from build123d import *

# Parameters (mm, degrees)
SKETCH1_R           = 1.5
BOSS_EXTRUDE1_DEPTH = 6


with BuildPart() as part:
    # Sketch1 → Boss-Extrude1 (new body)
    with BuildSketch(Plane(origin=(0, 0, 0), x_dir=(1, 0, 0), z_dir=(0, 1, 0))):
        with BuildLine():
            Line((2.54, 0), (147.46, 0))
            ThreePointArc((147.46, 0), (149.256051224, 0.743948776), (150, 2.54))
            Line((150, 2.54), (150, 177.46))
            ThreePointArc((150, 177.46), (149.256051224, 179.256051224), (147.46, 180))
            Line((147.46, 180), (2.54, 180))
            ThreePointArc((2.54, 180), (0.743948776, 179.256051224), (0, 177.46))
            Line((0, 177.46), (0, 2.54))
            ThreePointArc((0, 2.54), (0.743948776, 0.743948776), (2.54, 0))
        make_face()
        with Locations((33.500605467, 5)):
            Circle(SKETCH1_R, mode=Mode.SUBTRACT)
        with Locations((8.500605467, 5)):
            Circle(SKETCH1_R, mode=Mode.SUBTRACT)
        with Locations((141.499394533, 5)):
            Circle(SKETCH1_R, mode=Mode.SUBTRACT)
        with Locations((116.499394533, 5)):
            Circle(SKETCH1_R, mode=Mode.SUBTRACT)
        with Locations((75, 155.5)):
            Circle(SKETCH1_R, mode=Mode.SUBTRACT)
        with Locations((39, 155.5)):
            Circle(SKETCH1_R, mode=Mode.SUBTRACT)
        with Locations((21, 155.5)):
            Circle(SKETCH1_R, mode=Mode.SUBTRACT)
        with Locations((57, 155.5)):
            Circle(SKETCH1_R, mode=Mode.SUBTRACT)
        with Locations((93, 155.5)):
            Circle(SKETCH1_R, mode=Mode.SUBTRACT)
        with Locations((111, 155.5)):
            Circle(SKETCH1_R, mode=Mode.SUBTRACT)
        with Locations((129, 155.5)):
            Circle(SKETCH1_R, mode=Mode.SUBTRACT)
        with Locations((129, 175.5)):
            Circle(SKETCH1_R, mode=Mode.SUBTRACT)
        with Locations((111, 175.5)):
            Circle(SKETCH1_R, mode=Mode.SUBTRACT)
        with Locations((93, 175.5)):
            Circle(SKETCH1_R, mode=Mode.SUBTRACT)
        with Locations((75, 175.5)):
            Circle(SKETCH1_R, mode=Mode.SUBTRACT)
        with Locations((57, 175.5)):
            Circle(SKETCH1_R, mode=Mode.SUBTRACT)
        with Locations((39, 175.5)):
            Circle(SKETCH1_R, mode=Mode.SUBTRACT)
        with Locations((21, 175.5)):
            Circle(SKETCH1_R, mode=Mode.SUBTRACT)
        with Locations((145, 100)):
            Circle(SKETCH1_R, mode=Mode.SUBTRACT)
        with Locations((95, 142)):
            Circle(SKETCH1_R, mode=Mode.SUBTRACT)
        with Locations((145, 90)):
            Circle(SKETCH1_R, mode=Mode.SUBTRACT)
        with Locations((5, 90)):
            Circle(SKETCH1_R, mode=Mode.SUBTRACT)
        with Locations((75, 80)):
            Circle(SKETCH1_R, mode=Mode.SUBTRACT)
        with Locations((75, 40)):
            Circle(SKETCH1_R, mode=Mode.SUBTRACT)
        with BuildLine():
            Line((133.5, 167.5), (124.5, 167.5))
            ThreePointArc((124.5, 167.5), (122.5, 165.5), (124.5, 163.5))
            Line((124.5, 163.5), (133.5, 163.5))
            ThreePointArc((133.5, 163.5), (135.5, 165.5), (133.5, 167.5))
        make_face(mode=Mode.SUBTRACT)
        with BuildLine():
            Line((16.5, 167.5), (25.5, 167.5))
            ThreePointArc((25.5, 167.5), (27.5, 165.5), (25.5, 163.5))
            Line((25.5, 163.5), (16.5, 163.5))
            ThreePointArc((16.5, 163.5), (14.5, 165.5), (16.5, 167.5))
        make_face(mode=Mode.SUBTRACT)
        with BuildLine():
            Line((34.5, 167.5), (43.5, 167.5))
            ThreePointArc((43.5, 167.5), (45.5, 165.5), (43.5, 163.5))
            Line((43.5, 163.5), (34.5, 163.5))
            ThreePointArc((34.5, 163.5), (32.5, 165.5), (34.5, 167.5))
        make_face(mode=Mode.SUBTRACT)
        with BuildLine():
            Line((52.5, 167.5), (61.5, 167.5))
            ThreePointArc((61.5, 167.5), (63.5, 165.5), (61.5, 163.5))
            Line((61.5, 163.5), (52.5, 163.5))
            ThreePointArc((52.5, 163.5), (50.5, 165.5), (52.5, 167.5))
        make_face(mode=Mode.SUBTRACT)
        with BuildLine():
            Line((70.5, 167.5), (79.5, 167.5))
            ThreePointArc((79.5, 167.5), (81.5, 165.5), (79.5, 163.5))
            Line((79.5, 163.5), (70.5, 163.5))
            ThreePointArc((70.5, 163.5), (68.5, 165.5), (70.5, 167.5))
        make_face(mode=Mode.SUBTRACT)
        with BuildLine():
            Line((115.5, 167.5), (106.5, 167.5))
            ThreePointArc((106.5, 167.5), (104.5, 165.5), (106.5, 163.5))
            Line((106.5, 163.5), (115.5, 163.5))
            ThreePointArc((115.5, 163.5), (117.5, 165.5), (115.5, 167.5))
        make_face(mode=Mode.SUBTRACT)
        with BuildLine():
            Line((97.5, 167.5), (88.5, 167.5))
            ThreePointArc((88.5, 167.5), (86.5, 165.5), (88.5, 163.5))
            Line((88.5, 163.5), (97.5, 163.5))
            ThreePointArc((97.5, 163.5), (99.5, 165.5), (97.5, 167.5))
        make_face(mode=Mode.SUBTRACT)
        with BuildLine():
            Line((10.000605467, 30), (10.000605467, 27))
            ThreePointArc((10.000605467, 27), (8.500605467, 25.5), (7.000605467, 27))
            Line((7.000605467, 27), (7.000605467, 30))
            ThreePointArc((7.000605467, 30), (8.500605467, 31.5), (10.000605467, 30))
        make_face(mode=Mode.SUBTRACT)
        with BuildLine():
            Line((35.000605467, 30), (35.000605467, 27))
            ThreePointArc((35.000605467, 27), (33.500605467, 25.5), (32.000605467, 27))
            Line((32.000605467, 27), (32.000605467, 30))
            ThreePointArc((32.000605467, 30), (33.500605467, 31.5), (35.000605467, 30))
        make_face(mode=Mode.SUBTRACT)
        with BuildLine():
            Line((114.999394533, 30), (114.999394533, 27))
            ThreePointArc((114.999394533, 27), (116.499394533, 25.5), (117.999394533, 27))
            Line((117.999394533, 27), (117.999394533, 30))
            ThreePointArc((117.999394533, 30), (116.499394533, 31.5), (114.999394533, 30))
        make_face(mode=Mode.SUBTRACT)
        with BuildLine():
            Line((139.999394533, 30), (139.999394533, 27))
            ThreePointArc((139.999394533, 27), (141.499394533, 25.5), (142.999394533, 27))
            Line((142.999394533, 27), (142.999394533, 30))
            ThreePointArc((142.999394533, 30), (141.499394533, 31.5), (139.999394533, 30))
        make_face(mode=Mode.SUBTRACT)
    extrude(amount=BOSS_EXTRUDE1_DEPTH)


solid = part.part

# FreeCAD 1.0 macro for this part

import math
import FreeCAD as App
import Part
import Sketcher

V = App.Vector
Q = App.Units.Quantity

doc = App.newDocument("Part")
body = doc.addObject("PartDesign::Body", "Body")

# Sketch on XZ plane
sketch1 = body.newObject("Sketcher::SketchObject", "Sketch")
sketch1.AttachmentSupport = (doc.getObject("XZ_Plane"), [""])
sketch1.MapMode = "FlatFace"
sketch1.addGeometry(Part.LineSegment(V(2.5, 0, 0), V(147.5, 0, 0)), False)
sketch1.addGeometry(Part.ArcOfCircle(Part.Circle(V(147.5, -2.5, 0), V(0, 0, 1), 2.5), math.radians(0), math.radians(90)), False)
sketch1.addGeometry(Part.LineSegment(V(150, -2.5, 0), V(150, -177.5, 0)), False)
sketch1.addGeometry(Part.ArcOfCircle(Part.Circle(V(147.5, -177.5, 0), V(0, 0, 1), 2.5), math.radians(-90), math.radians(0)), False)
sketch1.addGeometry(Part.LineSegment(V(147.5, -180, 0), V(2.5, -180, 0)), False)
sketch1.addGeometry(Part.ArcOfCircle(Part.Circle(V(2.5, -177.5, 0), V(0, 0, 1), 2.5), math.radians(-180), math.radians(-90)), False)
sketch1.addGeometry(Part.LineSegment(V(0, -177.5, 0), V(0, -2.5, 0)), False)
sketch1.addGeometry(Part.ArcOfCircle(Part.Circle(V(2.5, -2.5, 0), V(0, 0, 1), 2.5), math.radians(90), math.radians(180)), False)
sketch1.addGeometry(Part.Circle(V(8.5, -5, 0), V(0, 0, 1), 1.5), False)
sketch1.addGeometry(Part.Circle(V(33.5, -5, 0), V(0, 0, 1), 1.5), False)
sketch1.addGeometry(Part.ArcOfCircle(Part.Circle(V(8.5, -30, 0), V(0, 0, 1), 1.5), math.radians(180), math.radians(360)), False)
sketch1.addGeometry(Part.LineSegment(V(10, -30, 0), V(10, -27, 0)), False)
sketch1.addGeometry(Part.ArcOfCircle(Part.Circle(V(8.5, -27, 0), V(0, 0, 1), 1.5), math.radians(0), math.radians(180)), False)
sketch1.addGeometry(Part.LineSegment(V(7, -27, 0), V(7, -30, 0)), False)
sketch1.addGeometry(Part.ArcOfCircle(Part.Circle(V(33.5, -30, 0), V(0, 0, 1), 1.5), math.radians(180), math.radians(360)), False)
sketch1.addGeometry(Part.LineSegment(V(35, -30, 0), V(35, -27, 0)), False)
sketch1.addGeometry(Part.ArcOfCircle(Part.Circle(V(33.5, -27, 0), V(0, 0, 1), 1.5), math.radians(0), math.radians(180)), False)
sketch1.addGeometry(Part.LineSegment(V(32, -27, 0), V(32, -30, 0)), False)
sketch1.addGeometry(Part.Circle(V(5, -90, 0), V(0, 0, 1), 1.5), False)
sketch1.addGeometry(Part.Circle(V(75, -40, 0), V(0, 0, 1), 1.5), False)
sketch1.addGeometry(Part.Circle(V(116.5, -5, 0), V(0, 0, 1), 1.5), False)
sketch1.addGeometry(Part.Circle(V(141.5, -5, 0), V(0, 0, 1), 1.5), False)
sketch1.addGeometry(Part.LineSegment(V(115, -27, 0), V(115, -30, 0)), False)
sketch1.addGeometry(Part.ArcOfCircle(Part.Circle(V(116.5, -30, 0), V(0, 0, 1), 1.5), math.radians(180), math.radians(360)), False)
sketch1.addGeometry(Part.LineSegment(V(118, -30, 0), V(118, -27, 0)), False)
sketch1.addGeometry(Part.ArcOfCircle(Part.Circle(V(116.5, -27, 0), V(0, 0, 1), 1.5), math.radians(0), math.radians(180)), False)
sketch1.addGeometry(Part.LineSegment(V(140, -27, 0), V(140, -30, 0)), False)
sketch1.addGeometry(Part.ArcOfCircle(Part.Circle(V(141.5, -30, 0), V(0, 0, 1), 1.5), math.radians(180), math.radians(360)), False)
sketch1.addGeometry(Part.LineSegment(V(143, -30, 0), V(143, -27, 0)), False)
sketch1.addGeometry(Part.ArcOfCircle(Part.Circle(V(141.5, -27, 0), V(0, 0, 1), 1.5), math.radians(0), math.radians(180)), False)
sketch1.addGeometry(Part.Circle(V(75, -80, 0), V(0, 0, 1), 1.5), False)
sketch1.addGeometry(Part.Circle(V(145, -90, 0), V(0, 0, 1), 1.5), False)
sketch1.addGeometry(Part.Circle(V(21, -155.5, 0), V(0, 0, 1), 1.5), False)
sketch1.addGeometry(Part.ArcOfCircle(Part.Circle(V(16.5, -165.5, 0), V(0, 0, 1), 2), math.radians(90), math.radians(270)), False)
sketch1.addGeometry(Part.LineSegment(V(16.5, -167.5, 0), V(25.5, -167.5, 0)), False)
sketch1.addGeometry(Part.ArcOfCircle(Part.Circle(V(25.5, -165.5, 0), V(0, 0, 1), 2), math.radians(-90), math.radians(90)), False)
sketch1.addGeometry(Part.LineSegment(V(25.5, -163.5, 0), V(16.5, -163.5, 0)), False)
sketch1.addGeometry(Part.Circle(V(21, -175.5, 0), V(0, 0, 1), 1.5), False)
sketch1.addGeometry(Part.Circle(V(39, -155.5, 0), V(0, 0, 1), 1.5), False)
sketch1.addGeometry(Part.ArcOfCircle(Part.Circle(V(34.5, -165.5, 0), V(0, 0, 1), 2), math.radians(90), math.radians(270)), False)
sketch1.addGeometry(Part.LineSegment(V(34.5, -167.5, 0), V(43.5, -167.5, 0)), False)
sketch1.addGeometry(Part.ArcOfCircle(Part.Circle(V(43.5, -165.5, 0), V(0, 0, 1), 2), math.radians(-90), math.radians(90)), False)
sketch1.addGeometry(Part.LineSegment(V(43.5, -163.5, 0), V(34.5, -163.5, 0)), False)
sketch1.addGeometry(Part.Circle(V(39, -175.5, 0), V(0, 0, 1), 1.5), False)
sketch1.addGeometry(Part.Circle(V(57, -155.5, 0), V(0, 0, 1), 1.5), False)
sketch1.addGeometry(Part.ArcOfCircle(Part.Circle(V(52.5, -165.5, 0), V(0, 0, 1), 2), math.radians(90), math.radians(270)), False)
sketch1.addGeometry(Part.LineSegment(V(52.5, -167.5, 0), V(61.5, -167.5, 0)), False)
sketch1.addGeometry(Part.ArcOfCircle(Part.Circle(V(61.5, -165.5, 0), V(0, 0, 1), 2), math.radians(-90), math.radians(90)), False)
sketch1.addGeometry(Part.LineSegment(V(61.5, -163.5, 0), V(52.5, -163.5, 0)), False)
sketch1.addGeometry(Part.Circle(V(57, -175.5, 0), V(0, 0, 1), 1.5), False)
sketch1.addGeometry(Part.Circle(V(145, -100, 0), V(0, 0, 1), 1.5), False)
sketch1.addGeometry(Part.Circle(V(95, -142, 0), V(0, 0, 1), 1.5), False)
sketch1.addGeometry(Part.Circle(V(75, -155.5, 0), V(0, 0, 1), 1.5), False)
sketch1.addGeometry(Part.ArcOfCircle(Part.Circle(V(70.5, -165.5, 0), V(0, 0, 1), 2), math.radians(90), math.radians(270)), False)
sketch1.addGeometry(Part.LineSegment(V(70.5, -167.5, 0), V(79.5, -167.5, 0)), False)
sketch1.addGeometry(Part.ArcOfCircle(Part.Circle(V(79.5, -165.5, 0), V(0, 0, 1), 2), math.radians(-90), math.radians(90)), False)
sketch1.addGeometry(Part.LineSegment(V(79.5, -163.5, 0), V(70.5, -163.5, 0)), False)
sketch1.addGeometry(Part.Circle(V(75, -175.5, 0), V(0, 0, 1), 1.5), False)
sketch1.addGeometry(Part.Circle(V(93, -155.5, 0), V(0, 0, 1), 1.5), False)
sketch1.addGeometry(Part.LineSegment(V(88.5, -167.5, 0), V(97.5, -167.5, 0)), False)
sketch1.addGeometry(Part.ArcOfCircle(Part.Circle(V(97.5, -165.5, 0), V(0, 0, 1), 2), math.radians(-90), math.radians(90)), False)
sketch1.addGeometry(Part.LineSegment(V(97.5, -163.5, 0), V(88.5, -163.5, 0)), False)
sketch1.addGeometry(Part.ArcOfCircle(Part.Circle(V(88.5, -165.5, 0), V(0, 0, 1), 2), math.radians(90), math.radians(270)), False)
sketch1.addGeometry(Part.Circle(V(93, -175.5, 0), V(0, 0, 1), 1.5), False)
sketch1.addGeometry(Part.Circle(V(111, -155.5, 0), V(0, 0, 1), 1.5), False)
sketch1.addGeometry(Part.LineSegment(V(106.5, -167.5, 0), V(115.5, -167.5, 0)), False)
sketch1.addGeometry(Part.ArcOfCircle(Part.Circle(V(115.5, -165.5, 0), V(0, 0, 1), 2), math.radians(-90), math.radians(90)), False)
sketch1.addGeometry(Part.LineSegment(V(115.5, -163.5, 0), V(106.5, -163.5, 0)), False)
sketch1.addGeometry(Part.ArcOfCircle(Part.Circle(V(106.5, -165.5, 0), V(0, 0, 1), 2), math.radians(90), math.radians(270)), False)
sketch1.addGeometry(Part.Circle(V(111, -175.5, 0), V(0, 0, 1), 1.5), False)
sketch1.addGeometry(Part.Circle(V(129, -155.5, 0), V(0, 0, 1), 1.5), False)
sketch1.addGeometry(Part.LineSegment(V(124.5, -167.5, 0), V(133.5, -167.5, 0)), False)
sketch1.addGeometry(Part.ArcOfCircle(Part.Circle(V(133.5, -165.5, 0), V(0, 0, 1), 2), math.radians(-90), math.radians(90)), False)
sketch1.addGeometry(Part.LineSegment(V(133.5, -163.5, 0), V(124.5, -163.5, 0)), False)
sketch1.addGeometry(Part.ArcOfCircle(Part.Circle(V(124.5, -165.5, 0), V(0, 0, 1), 2), math.radians(90), math.radians(270)), False)
sketch1.addGeometry(Part.Circle(V(129, -175.5, 0), V(0, 0, 1), 1.5), False)
sketch1.addConstraint(Sketcher.Constraint("Tangent", 0, 2, 1, 2))
sketch1.addConstraint(Sketcher.Constraint("Tangent", 1, 1, 2, 1))
sketch1.addConstraint(Sketcher.Constraint("Tangent", 2, 2, 3, 2))
sketch1.addConstraint(Sketcher.Constraint("Tangent", 3, 1, 4, 1))
sketch1.addConstraint(Sketcher.Constraint("Tangent", 4, 2, 5, 2))
sketch1.addConstraint(Sketcher.Constraint("Tangent", 5, 1, 6, 1))
sketch1.addConstraint(Sketcher.Constraint("Tangent", 6, 2, 7, 2))
sketch1.addConstraint(Sketcher.Constraint("Tangent", 7, 1, 0, 1))
sketch1.addConstraint(Sketcher.Constraint("Tangent", 10, 2, 11, 1))
sketch1.addConstraint(Sketcher.Constraint("Tangent", 11, 2, 12, 1))
sketch1.addConstraint(Sketcher.Constraint("Tangent", 12, 2, 13, 1))
sketch1.addConstraint(Sketcher.Constraint("Tangent", 13, 2, 10, 1))
sketch1.addConstraint(Sketcher.Constraint("Tangent", 14, 2, 15, 1))
sketch1.addConstraint(Sketcher.Constraint("Tangent", 15, 2, 16, 1))
sketch1.addConstraint(Sketcher.Constraint("Tangent", 16, 2, 17, 1))
sketch1.addConstraint(Sketcher.Constraint("Tangent", 17, 2, 14, 1))
sketch1.addConstraint(Sketcher.Constraint("Tangent", 22, 2, 23, 1))
sketch1.addConstraint(Sketcher.Constraint("Tangent", 23, 2, 24, 1))
sketch1.addConstraint(Sketcher.Constraint("Tangent", 24, 2, 25, 1))
sketch1.addConstraint(Sketcher.Constraint("Tangent", 25, 2, 22, 1))
sketch1.addConstraint(Sketcher.Constraint("Tangent", 26, 2, 27, 1))
sketch1.addConstraint(Sketcher.Constraint("Tangent", 27, 2, 28, 1))
sketch1.addConstraint(Sketcher.Constraint("Tangent", 28, 2, 29, 1))
sketch1.addConstraint(Sketcher.Constraint("Tangent", 29, 2, 26, 1))
sketch1.addConstraint(Sketcher.Constraint("Tangent", 33, 2, 34, 1))
sketch1.addConstraint(Sketcher.Constraint("Tangent", 34, 2, 35, 1))
sketch1.addConstraint(Sketcher.Constraint("Tangent", 35, 2, 36, 1))
sketch1.addConstraint(Sketcher.Constraint("Tangent", 36, 2, 33, 1))
sketch1.addConstraint(Sketcher.Constraint("Tangent", 39, 2, 40, 1))
sketch1.addConstraint(Sketcher.Constraint("Tangent", 40, 2, 41, 1))
sketch1.addConstraint(Sketcher.Constraint("Tangent", 41, 2, 42, 1))
sketch1.addConstraint(Sketcher.Constraint("Tangent", 42, 2, 39, 1))
sketch1.addConstraint(Sketcher.Constraint("Tangent", 45, 2, 46, 1))
sketch1.addConstraint(Sketcher.Constraint("Tangent", 46, 2, 47, 1))
sketch1.addConstraint(Sketcher.Constraint("Tangent", 47, 2, 48, 1))
sketch1.addConstraint(Sketcher.Constraint("Tangent", 48, 2, 45, 1))
sketch1.addConstraint(Sketcher.Constraint("Tangent", 53, 2, 54, 1))
sketch1.addConstraint(Sketcher.Constraint("Tangent", 54, 2, 55, 1))
sketch1.addConstraint(Sketcher.Constraint("Tangent", 55, 2, 56, 1))
sketch1.addConstraint(Sketcher.Constraint("Tangent", 56, 2, 53, 1))
sketch1.addConstraint(Sketcher.Constraint("Tangent", 59, 2, 60, 1))
sketch1.addConstraint(Sketcher.Constraint("Tangent", 60, 2, 61, 1))
sketch1.addConstraint(Sketcher.Constraint("Tangent", 61, 2, 62, 1))
sketch1.addConstraint(Sketcher.Constraint("Tangent", 62, 2, 59, 1))
sketch1.addConstraint(Sketcher.Constraint("Tangent", 65, 2, 66, 1))
sketch1.addConstraint(Sketcher.Constraint("Tangent", 66, 2, 67, 1))
sketch1.addConstraint(Sketcher.Constraint("Tangent", 67, 2, 68, 1))
sketch1.addConstraint(Sketcher.Constraint("Tangent", 68, 2, 65, 1))
sketch1.addConstraint(Sketcher.Constraint("Tangent", 71, 2, 72, 1))
sketch1.addConstraint(Sketcher.Constraint("Tangent", 72, 2, 73, 1))
sketch1.addConstraint(Sketcher.Constraint("Tangent", 73, 2, 74, 1))
sketch1.addConstraint(Sketcher.Constraint("Tangent", 74, 2, 71, 1))
sketch1.addConstraint(Sketcher.Constraint("Horizontal", 0))
sketch1.addConstraint(Sketcher.Constraint("Vertical", 2))
sketch1.addConstraint(Sketcher.Constraint("Horizontal", 4))
sketch1.addConstraint(Sketcher.Constraint("Vertical", 6))
sketch1.addConstraint(Sketcher.Constraint("Vertical", 11))
sketch1.addConstraint(Sketcher.Constraint("Vertical", 13))
sketch1.addConstraint(Sketcher.Constraint("Vertical", 15))
sketch1.addConstraint(Sketcher.Constraint("Vertical", 17))
sketch1.addConstraint(Sketcher.Constraint("Vertical", 22))
sketch1.addConstraint(Sketcher.Constraint("Vertical", 24))
sketch1.addConstraint(Sketcher.Constraint("Vertical", 26))
sketch1.addConstraint(Sketcher.Constraint("Vertical", 28))
sketch1.addConstraint(Sketcher.Constraint("Horizontal", 34))
sketch1.addConstraint(Sketcher.Constraint("Horizontal", 36))
sketch1.addConstraint(Sketcher.Constraint("Horizontal", 40))
sketch1.addConstraint(Sketcher.Constraint("Horizontal", 42))
sketch1.addConstraint(Sketcher.Constraint("Horizontal", 46))
sketch1.addConstraint(Sketcher.Constraint("Horizontal", 48))
sketch1.addConstraint(Sketcher.Constraint("Horizontal", 54))
sketch1.addConstraint(Sketcher.Constraint("Horizontal", 56))
sketch1.addConstraint(Sketcher.Constraint("Horizontal", 59))
sketch1.addConstraint(Sketcher.Constraint("Horizontal", 61))
sketch1.addConstraint(Sketcher.Constraint("Horizontal", 65))
sketch1.addConstraint(Sketcher.Constraint("Horizontal", 67))
sketch1.addConstraint(Sketcher.Constraint("Horizontal", 71))
sketch1.addConstraint(Sketcher.Constraint("Horizontal", 73))
sketch1.addConstraint(Sketcher.Constraint("Equal", 1, 3))
sketch1.addConstraint(Sketcher.Constraint("Equal", 3, 5))
sketch1.addConstraint(Sketcher.Constraint("Equal", 5, 7))
sketch1.addConstraint(Sketcher.Constraint("Equal", 8, 9))
sketch1.addConstraint(Sketcher.Constraint("Equal", 9, 10))
sketch1.addConstraint(Sketcher.Constraint("Equal", 12, 14))
sketch1.addConstraint(Sketcher.Constraint("Equal", 16, 18))
sketch1.addConstraint(Sketcher.Constraint("Equal", 18, 19))
sketch1.addConstraint(Sketcher.Constraint("Equal", 19, 20))
sketch1.addConstraint(Sketcher.Constraint("Equal", 20, 21))
sketch1.addConstraint(Sketcher.Constraint("Equal", 21, 23))
sketch1.addConstraint(Sketcher.Constraint("Equal", 25, 27))
sketch1.addConstraint(Sketcher.Constraint("Equal", 29, 30))
sketch1.addConstraint(Sketcher.Constraint("Equal", 30, 31))
sketch1.addConstraint(Sketcher.Constraint("Equal", 31, 32))
sketch1.addConstraint(Sketcher.Constraint("Equal", 32, 37))
sketch1.addConstraint(Sketcher.Constraint("Equal", 37, 38))
sketch1.addConstraint(Sketcher.Constraint("Equal", 35, 39))
sketch1.addConstraint(Sketcher.Constraint("Equal", 38, 43))
sketch1.addConstraint(Sketcher.Constraint("Equal", 43, 44))
sketch1.addConstraint(Sketcher.Constraint("Equal", 41, 45))
sketch1.addConstraint(Sketcher.Constraint("Equal", 44, 49))
sketch1.addConstraint(Sketcher.Constraint("Equal", 49, 50))
sketch1.addConstraint(Sketcher.Constraint("Equal", 50, 51))
sketch1.addConstraint(Sketcher.Constraint("Equal", 51, 52))
sketch1.addConstraint(Sketcher.Constraint("Equal", 47, 53))
sketch1.addConstraint(Sketcher.Constraint("Equal", 52, 57))
sketch1.addConstraint(Sketcher.Constraint("Equal", 57, 58))
sketch1.addConstraint(Sketcher.Constraint("Equal", 55, 60))
sketch1.addConstraint(Sketcher.Constraint("Equal", 58, 63))
sketch1.addConstraint(Sketcher.Constraint("Equal", 63, 64))
sketch1.addConstraint(Sketcher.Constraint("Equal", 62, 66))
sketch1.addConstraint(Sketcher.Constraint("Equal", 64, 69))
sketch1.addConstraint(Sketcher.Constraint("Equal", 69, 70))
sketch1.addConstraint(Sketcher.Constraint("Equal", 68, 72))
sketch1.addConstraint(Sketcher.Constraint("Equal", 70, 75))
sketch1.addConstraint(Sketcher.Constraint("PointOnObject", 0, 2, -1))
sketch1.addConstraint(Sketcher.Constraint("PointOnObject", 5, 1, -2))
sketch1.addConstraint(Sketcher.Constraint("Horizontal", 8, 3, 9, 3))
sketch1.addConstraint(Sketcher.Constraint("Horizontal", 10, 3, 14, 3))
sketch1.addConstraint(Sketcher.Constraint("Horizontal", 12, 3, 16, 3))
sketch1.addConstraint(Sketcher.Constraint("Horizontal", 9, 3, 20, 3))
sketch1.addConstraint(Sketcher.Constraint("Horizontal", 20, 3, 21, 3))
sketch1.addConstraint(Sketcher.Constraint("Horizontal", 14, 3, 23, 3))
sketch1.addConstraint(Sketcher.Constraint("Horizontal", 16, 3, 25, 3))
sketch1.addConstraint(Sketcher.Constraint("Horizontal", 23, 3, 27, 3))
sketch1.addConstraint(Sketcher.Constraint("Horizontal", 25, 3, 29, 3))
sketch1.addConstraint(Sketcher.Constraint("Horizontal", 18, 3, 31, 3))
sketch1.addConstraint(Sketcher.Constraint("Horizontal", 32, 3, 38, 3))
sketch1.addConstraint(Sketcher.Constraint("Horizontal", 35, 3, 39, 3))
sketch1.addConstraint(Sketcher.Constraint("Horizontal", 37, 3, 43, 3))
sketch1.addConstraint(Sketcher.Constraint("Horizontal", 38, 3, 44, 3))
sketch1.addConstraint(Sketcher.Constraint("Horizontal", 41, 3, 45, 3))
sketch1.addConstraint(Sketcher.Constraint("Horizontal", 43, 3, 49, 3))
sketch1.addConstraint(Sketcher.Constraint("Horizontal", 44, 3, 52, 3))
sketch1.addConstraint(Sketcher.Constraint("Horizontal", 47, 3, 53, 3))
sketch1.addConstraint(Sketcher.Constraint("Horizontal", 49, 3, 57, 3))
sketch1.addConstraint(Sketcher.Constraint("Horizontal", 52, 3, 58, 3))
sketch1.addConstraint(Sketcher.Constraint("Horizontal", 55, 3, 60, 3))
sketch1.addConstraint(Sketcher.Constraint("Horizontal", 57, 3, 63, 3))
sketch1.addConstraint(Sketcher.Constraint("Horizontal", 58, 3, 64, 3))
sketch1.addConstraint(Sketcher.Constraint("Horizontal", 62, 3, 66, 3))
sketch1.addConstraint(Sketcher.Constraint("Horizontal", 63, 3, 69, 3))
sketch1.addConstraint(Sketcher.Constraint("Horizontal", 64, 3, 70, 3))
sketch1.addConstraint(Sketcher.Constraint("Horizontal", 68, 3, 72, 3))
sketch1.addConstraint(Sketcher.Constraint("Horizontal", 69, 3, 75, 3))
sketch1.addConstraint(Sketcher.Constraint("Vertical", 8, 3, 10, 3))
sketch1.addConstraint(Sketcher.Constraint("Vertical", 9, 3, 14, 3))
sketch1.addConstraint(Sketcher.Constraint("Vertical", 20, 3, 23, 3))
sketch1.addConstraint(Sketcher.Constraint("Vertical", 21, 3, 27, 3))
sketch1.addConstraint(Sketcher.Constraint("Vertical", 19, 3, 30, 3))
sketch1.addConstraint(Sketcher.Constraint("Vertical", 32, 3, 37, 3))
sketch1.addConstraint(Sketcher.Constraint("Vertical", 38, 3, 43, 3))
sketch1.addConstraint(Sketcher.Constraint("Vertical", 44, 3, 49, 3))
sketch1.addConstraint(Sketcher.Constraint("Vertical", 31, 3, 50, 3))
sketch1.addConstraint(Sketcher.Constraint("Vertical", 30, 3, 52, 3))
sketch1.addConstraint(Sketcher.Constraint("Vertical", 52, 3, 57, 3))
sketch1.addConstraint(Sketcher.Constraint("Vertical", 58, 3, 63, 3))
sketch1.addConstraint(Sketcher.Constraint("Vertical", 64, 3, 69, 3))
sketch1.addConstraint(Sketcher.Constraint("Vertical", 70, 3, 75, 3))
sketch1.addConstraint(Sketcher.Constraint("Equal", 36, 40))
sketch1.addConstraint(Sketcher.Constraint("Equal", 42, 46))
sketch1.addConstraint(Sketcher.Constraint("Equal", 48, 54))
sketch1.addConstraint(Sketcher.Constraint("Equal", 56, 59))
sketch1.addConstraint(Sketcher.Constraint("Equal", 61, 65))
sketch1.addConstraint(Sketcher.Constraint("Equal", 67, 71))
sketch1.addConstraint(Sketcher.Constraint("Diameter", 8, Q("3 mm")))
sketch1.addConstraint(Sketcher.Constraint("Radius", 33, Q("2 mm")))
sketch1.addConstraint(Sketcher.Constraint("DistanceX", 34, 1, 34, 2, Q("9 mm")))
sketch1.addConstraint(Sketcher.Constraint("DistanceY", 11, 1, 11, 2, Q("3 mm")))
sketch1.addConstraint(Sketcher.Constraint("Radius", 1, Q("2.54 mm")))
sketch1.addConstraint(Sketcher.Constraint("DistanceY", 8, 3, -1, 1, Q("5 mm")))
sketch1.addConstraint(Sketcher.Constraint("DistanceY", 10, 3, -1, 1, Q("30 mm")))
sketch1.addConstraint(Sketcher.Constraint("DistanceX", -1, 1, 18, 3, Q("5 mm")))
sketch1.addConstraint(Sketcher.Constraint("DistanceY", 18, 3, -1, 1, Q("90 mm")))
sketch1.addConstraint(Sketcher.Constraint("DistanceX", -1, 1, 19, 3, Q("75 mm")))
sketch1.addConstraint(Sketcher.Constraint("DistanceY", 19, 3, -1, 1, Q("40 mm")))
sketch1.addConstraint(Sketcher.Constraint("DistanceY", 30, 3, -1, 1, Q("80 mm")))
sketch1.addConstraint(Sketcher.Constraint("DistanceX", -1, 1, 31, 3, Q("145 mm")))
sketch1.addConstraint(Sketcher.Constraint("DistanceX", -1, 1, 32, 3, Q("21 mm")))
sketch1.addConstraint(Sketcher.Constraint("DistanceX", -1, 1, 38, 3, Q("39 mm")))
sketch1.addConstraint(Sketcher.Constraint("DistanceX", -1, 1, 44, 3, Q("57 mm")))
sketch1.addConstraint(Sketcher.Constraint("DistanceY", 50, 3, -1, 1, Q("100 mm")))
sketch1.addConstraint(Sketcher.Constraint("DistanceX", -1, 1, 51, 3, Q("95 mm")))
sketch1.addConstraint(Sketcher.Constraint("DistanceY", 51, 3, -1, 1, Q("142 mm")))
sketch1.addConstraint(Sketcher.Constraint("DistanceX", -1, 1, 58, 3, Q("93 mm")))
sketch1.addConstraint(Sketcher.Constraint("DistanceX", -1, 1, 64, 3, Q("111 mm")))
sketch1.addConstraint(Sketcher.Constraint("DistanceX", -1, 1, 70, 3, Q("129 mm")))
sketch1.addConstraint(Sketcher.Constraint("DistanceX", -1, 1, 1, 1, Q("150 mm")))
sketch1.addConstraint(Sketcher.Constraint("DistanceY", 3, 1, -1, 1, Q("180 mm")))
sketch1.addConstraint(Sketcher.Constraint("DistanceY", 32, 3, -1, 1, Q("155.5 mm")))
sketch1.addConstraint(Sketcher.Constraint("DistanceX", -1, 1, 33, 3, Q("16.5 mm")))
sketch1.addConstraint(Sketcher.Constraint("DistanceY", 33, 3, -1, 1, Q("165.5 mm")))
sketch1.addConstraint(Sketcher.Constraint("DistanceY", 37, 3, -1, 1, Q("175.5 mm")))
sketch1.addConstraint(Sketcher.Constraint("DistanceX", -1, 1, 39, 3, Q("34.5 mm")))
sketch1.addConstraint(Sketcher.Constraint("DistanceX", -1, 1, 45, 3, Q("52.5 mm")))
sketch1.addConstraint(Sketcher.Constraint("DistanceX", -1, 1, 53, 3, Q("70.5 mm")))
sketch1.addConstraint(Sketcher.Constraint("DistanceX", -1, 1, 60, 3, Q("97.5 mm")))
sketch1.addConstraint(Sketcher.Constraint("DistanceX", -1, 1, 66, 3, Q("115.5 mm")))
sketch1.addConstraint(Sketcher.Constraint("DistanceX", -1, 1, 72, 3, Q("133.5 mm")))
sketch1.addConstraint(Sketcher.Constraint("DistanceX", -1, 1, 8, 3, Q("8.500605 mm")))
sketch1.addConstraint(Sketcher.Constraint("DistanceX", -1, 1, 9, 3, Q("33.500605 mm")))
sketch1.addConstraint(Sketcher.Constraint("DistanceX", -1, 1, 20, 3, Q("116.499395 mm")))
sketch1.addConstraint(Sketcher.Constraint("DistanceX", -1, 1, 21, 3, Q("141.499395 mm")))
pad1 = body.newObject("PartDesign::Pad", "Pad")
pad1.Profile = sketch1
pad1.Length = 6
pad1.Reversed = True

doc.recompute()
